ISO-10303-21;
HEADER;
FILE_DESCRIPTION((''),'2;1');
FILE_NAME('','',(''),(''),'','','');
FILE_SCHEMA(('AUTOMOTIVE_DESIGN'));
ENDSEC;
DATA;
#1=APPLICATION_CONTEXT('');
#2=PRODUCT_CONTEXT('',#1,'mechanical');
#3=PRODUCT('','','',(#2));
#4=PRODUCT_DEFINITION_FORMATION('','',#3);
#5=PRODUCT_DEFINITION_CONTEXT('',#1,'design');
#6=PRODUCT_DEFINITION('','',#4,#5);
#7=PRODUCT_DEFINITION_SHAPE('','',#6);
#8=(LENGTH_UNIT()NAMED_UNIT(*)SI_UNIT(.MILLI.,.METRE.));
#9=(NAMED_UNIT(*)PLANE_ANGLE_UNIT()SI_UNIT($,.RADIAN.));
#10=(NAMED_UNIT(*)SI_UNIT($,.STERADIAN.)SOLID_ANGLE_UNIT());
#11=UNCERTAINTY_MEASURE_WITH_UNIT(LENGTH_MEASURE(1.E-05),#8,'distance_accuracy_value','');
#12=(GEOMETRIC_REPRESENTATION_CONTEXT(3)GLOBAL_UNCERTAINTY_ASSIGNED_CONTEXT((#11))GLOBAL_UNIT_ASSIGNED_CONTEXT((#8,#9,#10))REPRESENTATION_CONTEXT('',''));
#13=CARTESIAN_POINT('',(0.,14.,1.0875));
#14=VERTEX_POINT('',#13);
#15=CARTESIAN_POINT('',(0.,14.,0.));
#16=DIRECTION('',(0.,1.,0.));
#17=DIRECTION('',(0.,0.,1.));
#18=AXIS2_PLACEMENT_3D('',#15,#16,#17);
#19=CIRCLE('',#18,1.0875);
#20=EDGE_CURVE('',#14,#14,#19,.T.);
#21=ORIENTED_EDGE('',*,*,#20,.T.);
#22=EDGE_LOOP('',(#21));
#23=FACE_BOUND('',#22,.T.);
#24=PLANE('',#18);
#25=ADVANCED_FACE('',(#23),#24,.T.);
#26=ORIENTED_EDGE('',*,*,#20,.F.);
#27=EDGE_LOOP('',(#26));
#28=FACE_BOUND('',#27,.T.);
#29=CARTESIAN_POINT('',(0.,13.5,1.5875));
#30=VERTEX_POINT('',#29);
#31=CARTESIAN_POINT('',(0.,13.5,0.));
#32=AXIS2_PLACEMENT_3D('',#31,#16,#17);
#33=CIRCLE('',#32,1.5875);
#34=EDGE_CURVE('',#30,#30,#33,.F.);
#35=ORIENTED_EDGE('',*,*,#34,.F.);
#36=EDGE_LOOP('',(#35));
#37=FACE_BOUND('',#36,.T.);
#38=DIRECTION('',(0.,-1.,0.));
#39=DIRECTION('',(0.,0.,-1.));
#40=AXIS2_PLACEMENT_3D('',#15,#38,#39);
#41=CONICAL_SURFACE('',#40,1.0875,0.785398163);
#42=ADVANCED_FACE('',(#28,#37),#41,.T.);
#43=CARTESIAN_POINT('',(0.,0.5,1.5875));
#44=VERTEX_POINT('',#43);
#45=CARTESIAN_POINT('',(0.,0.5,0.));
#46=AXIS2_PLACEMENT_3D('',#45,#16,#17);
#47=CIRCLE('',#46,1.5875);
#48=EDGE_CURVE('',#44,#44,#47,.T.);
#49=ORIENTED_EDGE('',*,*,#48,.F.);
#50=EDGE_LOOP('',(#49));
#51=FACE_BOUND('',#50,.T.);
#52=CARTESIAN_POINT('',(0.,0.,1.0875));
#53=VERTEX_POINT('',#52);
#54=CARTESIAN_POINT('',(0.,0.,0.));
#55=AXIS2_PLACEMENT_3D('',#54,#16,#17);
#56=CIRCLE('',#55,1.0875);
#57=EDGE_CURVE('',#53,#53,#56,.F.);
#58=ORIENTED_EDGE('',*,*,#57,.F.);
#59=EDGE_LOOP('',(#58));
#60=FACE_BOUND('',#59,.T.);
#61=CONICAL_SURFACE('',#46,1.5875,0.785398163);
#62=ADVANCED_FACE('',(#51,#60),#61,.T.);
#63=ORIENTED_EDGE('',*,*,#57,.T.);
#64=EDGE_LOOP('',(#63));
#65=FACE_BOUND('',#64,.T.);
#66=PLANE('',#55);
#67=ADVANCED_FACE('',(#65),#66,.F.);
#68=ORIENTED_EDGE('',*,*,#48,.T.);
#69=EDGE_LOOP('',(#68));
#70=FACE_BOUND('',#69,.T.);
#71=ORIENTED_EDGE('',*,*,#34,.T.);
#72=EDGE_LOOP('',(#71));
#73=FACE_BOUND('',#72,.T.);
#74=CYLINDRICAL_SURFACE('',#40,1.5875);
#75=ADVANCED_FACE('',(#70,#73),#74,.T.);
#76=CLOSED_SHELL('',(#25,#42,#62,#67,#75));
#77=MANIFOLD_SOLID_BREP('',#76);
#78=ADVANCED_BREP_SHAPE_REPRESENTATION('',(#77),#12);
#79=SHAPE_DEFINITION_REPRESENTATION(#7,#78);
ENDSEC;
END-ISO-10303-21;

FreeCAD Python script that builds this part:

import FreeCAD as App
import Part
import Sketcher
Q = App.Units.Quantity


def edges_at(feature, points):
    """Names of the edges that pass closest to the given points."""
    edges = feature.Shape.Edges
    near = lambda p: min(range(len(edges)), key=lambda i: edges[i].distToShape(Part.Vertex(*p))[0])
    return sorted({f"Edge{near(p) + 1}" for p in points})

doc = App.newDocument("Part")
body = doc.addObject("PartDesign::Body", "Body")

sketch1 = body.newObject("Sketcher::SketchObject", "Sketch")
sketch1.AttachmentSupport = (doc.getObject("XZ_Plane"), [""])
sketch1.MapMode = "FlatFace"
sketch1.addGeometry(Part.Circle(App.Vector(0, 0, 0), App.Vector(0, 0, 1), 1.5875), False)
sketch1.addConstraint([
    Sketcher.Constraint("Coincident", 0, 3, -1, 1),
    Sketcher.Constraint("Diameter", 0, Q("3.175 mm")),
])
pad1 = body.newObject("PartDesign::Pad", "Pad")
pad1.Profile = sketch1
pad1.Length = 14
pad1.Reversed = True
doc.recompute()

chamfer = body.newObject("PartDesign::Chamfer", "Chamfer")
chamfer.Base = (pad1, edges_at(pad1, [(0, 0, -1.587), (0, 14, -1.587)]))
chamfer.Size = 0.5

doc.recompute()
